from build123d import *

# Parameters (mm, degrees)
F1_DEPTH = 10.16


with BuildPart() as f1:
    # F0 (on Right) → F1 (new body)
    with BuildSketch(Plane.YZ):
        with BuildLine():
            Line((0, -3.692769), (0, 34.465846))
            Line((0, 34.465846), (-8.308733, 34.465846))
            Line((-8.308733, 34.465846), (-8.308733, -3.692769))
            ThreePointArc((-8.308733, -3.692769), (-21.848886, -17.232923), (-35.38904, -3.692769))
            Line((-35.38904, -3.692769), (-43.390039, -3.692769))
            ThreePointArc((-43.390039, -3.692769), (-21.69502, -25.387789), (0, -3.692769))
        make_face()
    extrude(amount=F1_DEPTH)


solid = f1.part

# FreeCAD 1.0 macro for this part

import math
import FreeCAD as App
import Part
import Sketcher
Q = App.Units.Quantity

doc = App.newDocument("Part")
params = doc.addObject("Spreadsheet::Sheet", "Params")
for row, (alias, value) in enumerate([
    ("sketch1_width", "0.315 in"),
    ("pad1_length", "0.4 in"),
], start=1):
    params.set(f"A{row}", alias)
    params.set(f"B{row}", "=" + value)
    params.setAlias(f"B{row}", alias)

body = doc.addObject("PartDesign::Body", "Body")

# Sketch on YZ plane
sketch1 = doc.addObject("Sketcher::SketchObject", "Sketch")
body.addObject(sketch1)
sketch1.AttachmentSupport = (doc.YZ_Plane, [""])
sketch1.MapMode = "FlatFace"
sketch1.addGeometry([
    Part.LineSegment(App.Vector(0, -4, 0), App.Vector(0, 34, 0)),  # 0
    Part.LineSegment(App.Vector(0, 34, 0), App.Vector(-8, 34, 0)),  # 1
    Part.LineSegment(App.Vector(-8, 34, 0), App.Vector(-8, -4, 0)),  # 2
    Part.ArcOfCircle(Part.Circle(App.Vector(-22, -4, 0), App.Vector(0, 0, 1), 14), math.radians(180), math.radians(360)),  # 3
    Part.LineSegment(App.Vector(-35, -4, 0), App.Vector(-43, -4, 0)),  # 4
    Part.ArcOfCircle(Part.Circle(App.Vector(-22, -4, 0), App.Vector(0, 0, 1), 22), math.radians(180), math.radians(360)),  # 5
], False)
sketch1.addConstraint([
    Sketcher.Constraint("Coincident", 0, 2, 1, 1),
    Sketcher.Constraint("Coincident", 1, 2, 2, 1),
    Sketcher.Constraint("Tangent", 2, 2, 3, 2),
    Sketcher.Constraint("Coincident", 3, 1, 4, 1),
    Sketcher.Constraint("Coincident", 4, 2, 5, 1),
    Sketcher.Constraint("Tangent", 5, 2, 0, 1),
    Sketcher.Constraint("Vertical", 0),
    Sketcher.Constraint("Horizontal", 1),
    Sketcher.Constraint("Vertical", 2),
    Sketcher.Constraint("Horizontal", 4),
    Sketcher.Constraint("PointOnObject", 0, 2, -2),
    Sketcher.Constraint("Horizontal", 3, 3, 5, 3),
    Sketcher.Constraint("Horizontal", 2, 2, 3, 1),
    Sketcher.Constraint("DistanceX", 4, 2, 4, 1, Q("0.315 in")),
    Sketcher.Constraint("Radius", 5, 21.69502),
    Sketcher.Constraint("Radius", 3, 13.540154),
    Sketcher.Constraint("DistanceY", 0, 1, 0, 2, 38.158615),
    Sketcher.Constraint("DistanceY", 3, 3, -1, 1, 3.692769),
])
sketch1.setExpression("Constraints[13]", "Params.sketch1_width")
pad1 = doc.addObject("PartDesign::Pad", "Pad")
body.addObject(pad1)
pad1.Profile = sketch1
pad1.setExpression("Length", "Params.pad1_length")

doc.recompute()
